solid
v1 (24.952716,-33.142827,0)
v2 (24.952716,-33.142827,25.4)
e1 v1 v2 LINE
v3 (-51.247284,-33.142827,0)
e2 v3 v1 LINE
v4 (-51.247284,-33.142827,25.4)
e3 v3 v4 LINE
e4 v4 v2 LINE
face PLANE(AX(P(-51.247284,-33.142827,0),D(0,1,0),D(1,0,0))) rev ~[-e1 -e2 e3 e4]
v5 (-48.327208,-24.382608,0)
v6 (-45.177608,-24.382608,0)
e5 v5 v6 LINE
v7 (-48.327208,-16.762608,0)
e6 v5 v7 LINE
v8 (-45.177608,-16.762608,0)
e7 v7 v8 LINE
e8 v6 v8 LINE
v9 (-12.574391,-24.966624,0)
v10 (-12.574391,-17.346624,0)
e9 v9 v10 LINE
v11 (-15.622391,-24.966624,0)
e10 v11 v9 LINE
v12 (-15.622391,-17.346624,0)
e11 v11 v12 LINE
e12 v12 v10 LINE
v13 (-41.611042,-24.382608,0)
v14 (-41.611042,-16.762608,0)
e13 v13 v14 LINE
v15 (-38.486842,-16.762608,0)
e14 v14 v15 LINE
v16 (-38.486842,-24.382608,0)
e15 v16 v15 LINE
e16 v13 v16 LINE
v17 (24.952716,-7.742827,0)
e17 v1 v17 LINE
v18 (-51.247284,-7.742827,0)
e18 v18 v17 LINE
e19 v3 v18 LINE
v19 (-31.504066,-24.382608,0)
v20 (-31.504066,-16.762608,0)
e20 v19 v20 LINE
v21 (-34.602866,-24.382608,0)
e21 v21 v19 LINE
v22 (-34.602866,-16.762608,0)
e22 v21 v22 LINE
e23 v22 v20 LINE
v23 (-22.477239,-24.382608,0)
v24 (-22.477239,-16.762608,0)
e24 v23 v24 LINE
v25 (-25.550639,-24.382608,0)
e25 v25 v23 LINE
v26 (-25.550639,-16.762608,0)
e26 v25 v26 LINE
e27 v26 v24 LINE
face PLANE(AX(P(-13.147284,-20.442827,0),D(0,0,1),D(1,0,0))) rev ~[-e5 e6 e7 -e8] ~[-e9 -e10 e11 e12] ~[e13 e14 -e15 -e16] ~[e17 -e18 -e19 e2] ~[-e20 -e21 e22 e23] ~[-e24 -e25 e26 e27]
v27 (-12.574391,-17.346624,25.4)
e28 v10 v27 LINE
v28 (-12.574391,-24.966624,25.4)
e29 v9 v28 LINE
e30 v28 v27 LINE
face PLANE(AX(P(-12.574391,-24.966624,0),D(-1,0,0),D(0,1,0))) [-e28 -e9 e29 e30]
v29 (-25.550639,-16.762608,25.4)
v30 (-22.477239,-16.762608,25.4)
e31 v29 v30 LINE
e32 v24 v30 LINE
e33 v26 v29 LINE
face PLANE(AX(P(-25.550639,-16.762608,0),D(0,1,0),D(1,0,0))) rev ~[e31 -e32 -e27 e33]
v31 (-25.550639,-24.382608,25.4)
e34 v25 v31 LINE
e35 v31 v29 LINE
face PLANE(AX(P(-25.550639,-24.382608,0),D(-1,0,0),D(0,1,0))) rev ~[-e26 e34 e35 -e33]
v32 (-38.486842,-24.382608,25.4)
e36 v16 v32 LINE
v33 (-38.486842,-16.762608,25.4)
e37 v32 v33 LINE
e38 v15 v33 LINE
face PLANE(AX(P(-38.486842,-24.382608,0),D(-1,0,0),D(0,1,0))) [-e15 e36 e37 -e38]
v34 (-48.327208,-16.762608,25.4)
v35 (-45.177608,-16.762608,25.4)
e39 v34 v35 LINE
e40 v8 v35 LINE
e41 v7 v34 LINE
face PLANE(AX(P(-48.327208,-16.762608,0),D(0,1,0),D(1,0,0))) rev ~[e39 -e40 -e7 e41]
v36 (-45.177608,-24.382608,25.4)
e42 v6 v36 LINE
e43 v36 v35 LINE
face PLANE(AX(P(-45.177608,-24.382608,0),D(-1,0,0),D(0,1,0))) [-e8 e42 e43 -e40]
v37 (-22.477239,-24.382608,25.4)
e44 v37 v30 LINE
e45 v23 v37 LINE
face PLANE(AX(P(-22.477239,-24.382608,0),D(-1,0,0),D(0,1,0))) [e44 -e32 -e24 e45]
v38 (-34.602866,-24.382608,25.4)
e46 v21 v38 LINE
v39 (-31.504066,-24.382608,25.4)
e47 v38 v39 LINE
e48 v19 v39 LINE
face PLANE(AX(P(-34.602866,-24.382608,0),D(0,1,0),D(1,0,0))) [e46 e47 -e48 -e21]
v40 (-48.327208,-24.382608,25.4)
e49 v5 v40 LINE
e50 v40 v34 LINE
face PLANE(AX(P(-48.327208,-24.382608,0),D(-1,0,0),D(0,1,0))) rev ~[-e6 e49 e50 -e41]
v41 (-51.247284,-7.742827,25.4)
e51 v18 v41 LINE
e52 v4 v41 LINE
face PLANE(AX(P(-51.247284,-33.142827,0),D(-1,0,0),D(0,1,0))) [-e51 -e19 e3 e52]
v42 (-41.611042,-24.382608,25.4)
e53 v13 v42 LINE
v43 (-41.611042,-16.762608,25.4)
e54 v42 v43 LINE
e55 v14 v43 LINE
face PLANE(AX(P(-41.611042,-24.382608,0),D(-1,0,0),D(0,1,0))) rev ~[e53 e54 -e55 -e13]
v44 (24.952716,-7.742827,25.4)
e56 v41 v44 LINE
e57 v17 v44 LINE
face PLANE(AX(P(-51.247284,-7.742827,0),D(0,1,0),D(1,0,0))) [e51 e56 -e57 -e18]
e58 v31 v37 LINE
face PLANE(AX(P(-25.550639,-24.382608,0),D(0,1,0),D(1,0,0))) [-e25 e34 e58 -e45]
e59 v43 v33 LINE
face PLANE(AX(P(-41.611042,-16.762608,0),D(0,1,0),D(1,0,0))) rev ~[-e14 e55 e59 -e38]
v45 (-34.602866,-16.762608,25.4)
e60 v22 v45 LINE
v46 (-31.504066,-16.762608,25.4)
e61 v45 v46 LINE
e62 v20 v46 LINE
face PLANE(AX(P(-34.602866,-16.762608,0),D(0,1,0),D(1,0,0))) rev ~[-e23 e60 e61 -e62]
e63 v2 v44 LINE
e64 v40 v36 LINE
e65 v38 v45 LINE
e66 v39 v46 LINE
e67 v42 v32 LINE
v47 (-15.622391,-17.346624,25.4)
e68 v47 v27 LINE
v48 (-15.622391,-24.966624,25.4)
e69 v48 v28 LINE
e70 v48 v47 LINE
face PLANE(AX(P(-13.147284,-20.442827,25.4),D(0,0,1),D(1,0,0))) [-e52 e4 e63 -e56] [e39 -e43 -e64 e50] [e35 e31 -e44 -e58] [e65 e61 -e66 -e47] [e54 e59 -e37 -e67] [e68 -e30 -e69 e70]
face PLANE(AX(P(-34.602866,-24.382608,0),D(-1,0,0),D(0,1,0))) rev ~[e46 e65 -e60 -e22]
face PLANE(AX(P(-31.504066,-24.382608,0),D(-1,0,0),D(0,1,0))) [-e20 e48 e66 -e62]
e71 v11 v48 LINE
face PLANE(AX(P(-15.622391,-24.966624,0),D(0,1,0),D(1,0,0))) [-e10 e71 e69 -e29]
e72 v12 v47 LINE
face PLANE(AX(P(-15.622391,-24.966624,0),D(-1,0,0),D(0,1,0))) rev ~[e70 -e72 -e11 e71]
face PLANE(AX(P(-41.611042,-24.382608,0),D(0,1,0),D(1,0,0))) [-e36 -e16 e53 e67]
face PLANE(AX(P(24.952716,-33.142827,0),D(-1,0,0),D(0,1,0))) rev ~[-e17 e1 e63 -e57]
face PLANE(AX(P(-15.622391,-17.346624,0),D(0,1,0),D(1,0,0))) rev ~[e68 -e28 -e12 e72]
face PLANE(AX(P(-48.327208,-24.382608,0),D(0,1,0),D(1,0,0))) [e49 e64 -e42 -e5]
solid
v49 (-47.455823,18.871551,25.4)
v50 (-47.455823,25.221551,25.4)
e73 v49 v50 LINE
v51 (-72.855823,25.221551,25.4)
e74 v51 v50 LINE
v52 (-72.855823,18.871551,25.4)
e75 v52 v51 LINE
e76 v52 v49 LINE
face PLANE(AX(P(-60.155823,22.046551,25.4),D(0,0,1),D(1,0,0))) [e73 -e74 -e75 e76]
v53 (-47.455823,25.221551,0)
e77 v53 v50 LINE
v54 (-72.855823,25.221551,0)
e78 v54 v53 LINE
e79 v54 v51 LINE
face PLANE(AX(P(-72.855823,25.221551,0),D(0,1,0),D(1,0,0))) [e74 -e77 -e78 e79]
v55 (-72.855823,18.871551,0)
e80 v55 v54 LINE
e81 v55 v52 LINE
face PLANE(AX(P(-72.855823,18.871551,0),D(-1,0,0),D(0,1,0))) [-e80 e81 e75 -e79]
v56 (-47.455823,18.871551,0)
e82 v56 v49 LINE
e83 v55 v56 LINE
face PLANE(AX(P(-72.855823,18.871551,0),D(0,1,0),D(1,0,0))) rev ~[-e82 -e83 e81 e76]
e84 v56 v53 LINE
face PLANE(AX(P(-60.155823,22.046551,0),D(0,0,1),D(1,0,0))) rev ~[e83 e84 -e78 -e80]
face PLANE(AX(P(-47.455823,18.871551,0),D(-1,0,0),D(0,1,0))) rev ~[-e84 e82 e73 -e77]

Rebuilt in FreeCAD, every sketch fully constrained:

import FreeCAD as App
import Part
import Sketcher
Q = App.Units.Quantity

doc = App.newDocument("Part")
body = doc.addObject("PartDesign::Body", "Body")
body.AllowCompound = True

# Sketch on XY plane
sketch1 = body.newObject("Sketcher::SketchObject", "Sketch")
sketch1.AttachmentSupport = (doc.getObject("XY_Plane"), [""])
sketch1.MapMode = "FlatFace"
sketch1.addGeometry([
    Part.LineSegment(App.Vector(-72.9, 25.2, 0), App.Vector(-72.9, 18.9, 0)),  # 0
    Part.LineSegment(App.Vector(-72.9, 18.9, 0), App.Vector(-47.5, 18.9, 0)),  # 1
    Part.LineSegment(App.Vector(-47.5, 18.9, 0), App.Vector(-47.5, 25.2, 0)),  # 2
    Part.LineSegment(App.Vector(-47.5, 25.2, 0), App.Vector(-72.9, 25.2, 0)),  # 3
    Part.LineSegment(App.Vector(-51.2, -7.7, 0), App.Vector(-51.2, -33.1, 0)),  # 4
    Part.LineSegment(App.Vector(-51.2, -33.1, 0), App.Vector(25, -33.1, 0)),  # 5
    Part.LineSegment(App.Vector(25, -33.1, 0), App.Vector(25, -7.7, 0)),  # 6
    Part.LineSegment(App.Vector(25, -7.7, 0), App.Vector(-51.2, -7.7, 0)),  # 7
    Part.LineSegment(App.Vector(-12.6, -25, 0), App.Vector(-15.6, -25, 0)),  # 8
    Part.LineSegment(App.Vector(-15.6, -25, 0), App.Vector(-15.6, -17.3, 0)),  # 9
    Part.LineSegment(App.Vector(-15.6, -17.3, 0), App.Vector(-12.6, -17.3, 0)),  # 10
    Part.LineSegment(App.Vector(-12.6, -17.3, 0), App.Vector(-12.6, -25, 0)),  # 11
    Part.LineSegment(App.Vector(-45.2, -24.4, 0), App.Vector(-48.3, -24.4, 0)),  # 12
    Part.LineSegment(App.Vector(-48.3, -24.4, 0), App.Vector(-48.3, -16.8, 0)),  # 13
    Part.LineSegment(App.Vector(-48.3, -16.8, 0), App.Vector(-45.2, -16.8, 0)),  # 14
    Part.LineSegment(App.Vector(-45.2, -16.8, 0), App.Vector(-45.2, -24.4, 0)),  # 15
    Part.LineSegment(App.Vector(-38.5, -24.4, 0), App.Vector(-41.6, -24.4, 0)),  # 16
    Part.LineSegment(App.Vector(-41.6, -24.4, 0), App.Vector(-41.6, -16.8, 0)),  # 17
    Part.LineSegment(App.Vector(-41.6, -16.8, 0), App.Vector(-38.5, -16.8, 0)),  # 18
    Part.LineSegment(App.Vector(-38.5, -16.8, 0), App.Vector(-38.5, -24.4, 0)),  # 19
    Part.LineSegment(App.Vector(-31.5, -24.4, 0), App.Vector(-34.6, -24.4, 0)),  # 20
    Part.LineSegment(App.Vector(-34.6, -24.4, 0), App.Vector(-34.6, -16.8, 0)),  # 21
    Part.LineSegment(App.Vector(-34.6, -16.8, 0), App.Vector(-31.5, -16.8, 0)),  # 22
    Part.LineSegment(App.Vector(-31.5, -16.8, 0), App.Vector(-31.5, -24.4, 0)),  # 23
    Part.LineSegment(App.Vector(-22.5, -24.4, 0), App.Vector(-25.6, -24.4, 0)),  # 24
    Part.LineSegment(App.Vector(-25.6, -24.4, 0), App.Vector(-25.6, -16.8, 0)),  # 25
    Part.LineSegment(App.Vector(-25.6, -16.8, 0), App.Vector(-22.5, -16.8, 0)),  # 26
    Part.LineSegment(App.Vector(-22.5, -16.8, 0), App.Vector(-22.5, -24.4, 0)),  # 27
], False)
sketch1.addConstraint([
    Sketcher.Constraint("Coincident", 0, 2, 1, 1),
    Sketcher.Constraint("Coincident", 1, 2, 2, 1),
    Sketcher.Constraint("Coincident", 2, 2, 3, 1),
    Sketcher.Constraint("Coincident", 3, 2, 0, 1),
    Sketcher.Constraint("Coincident", 4, 2, 5, 1),
    Sketcher.Constraint("Coincident", 5, 2, 6, 1),
    Sketcher.Constraint("Coincident", 6, 2, 7, 1),
    Sketcher.Constraint("Coincident", 7, 2, 4, 1),
    Sketcher.Constraint("Coincident", 8, 2, 9, 1),
    Sketcher.Constraint("Coincident", 9, 2, 10, 1),
    Sketcher.Constraint("Coincident", 10, 2, 11, 1),
    Sketcher.Constraint("Coincident", 11, 2, 8, 1),
    Sketcher.Constraint("Coincident", 12, 2, 13, 1),
    Sketcher.Constraint("Coincident", 13, 2, 14, 1),
    Sketcher.Constraint("Coincident", 14, 2, 15, 1),
    Sketcher.Constraint("Coincident", 15, 2, 12, 1),
    Sketcher.Constraint("Coincident", 16, 2, 17, 1),
    Sketcher.Constraint("Coincident", 17, 2, 18, 1),
    Sketcher.Constraint("Coincident", 18, 2, 19, 1),
    Sketcher.Constraint("Coincident", 19, 2, 16, 1),
    Sketcher.Constraint("Coincident", 20, 2, 21, 1),
    Sketcher.Constraint("Coincident", 21, 2, 22, 1),
    Sketcher.Constraint("Coincident", 22, 2, 23, 1),
    Sketcher.Constraint("Coincident", 23, 2, 20, 1),
    Sketcher.Constraint("Coincident", 24, 2, 25, 1),
    Sketcher.Constraint("Coincident", 25, 2, 26, 1),
    Sketcher.Constraint("Coincident", 26, 2, 27, 1),
    Sketcher.Constraint("Coincident", 27, 2, 24, 1),
    Sketcher.Constraint("Vertical", 0),
    Sketcher.Constraint("Horizontal", 1),
    Sketcher.Constraint("Vertical", 2),
    Sketcher.Constraint("Horizontal", 3),
    Sketcher.Constraint("Vertical", 4),
    Sketcher.Constraint("Horizontal", 5),
    Sketcher.Constraint("Vertical", 6),
    Sketcher.Constraint("Horizontal", 7),
    Sketcher.Constraint("Horizontal", 8),
    Sketcher.Constraint("Vertical", 9),
    Sketcher.Constraint("Horizontal", 10),
    Sketcher.Constraint("Vertical", 11),
    Sketcher.Constraint("Horizontal", 12),
    Sketcher.Constraint("Vertical", 13),
    Sketcher.Constraint("Horizontal", 14),
    Sketcher.Constraint("Vertical", 15),
    Sketcher.Constraint("Horizontal", 16),
    Sketcher.Constraint("Vertical", 17),
    Sketcher.Constraint("Horizontal", 18),
    Sketcher.Constraint("Vertical", 19),
    Sketcher.Constraint("Horizontal", 20),
    Sketcher.Constraint("Vertical", 21),
    Sketcher.Constraint("Horizontal", 22),
    Sketcher.Constraint("Vertical", 23),
    Sketcher.Constraint("Horizontal", 24),
    Sketcher.Constraint("Vertical", 25),
    Sketcher.Constraint("Horizontal", 26),
    Sketcher.Constraint("Vertical", 27),
    Sketcher.Constraint("Horizontal", 15, 2, 16, 2),
    Sketcher.Constraint("Horizontal", 14, 2, 17, 2),
    Sketcher.Constraint("Horizontal", 19, 2, 20, 2),
    Sketcher.Constraint("Horizontal", 18, 2, 21, 2),
    Sketcher.Constraint("Horizontal", 23, 2, 24, 2),
    Sketcher.Constraint("Horizontal", 22, 2, 25, 2),
    Sketcher.Constraint("Equal", 3, 4),
    Sketcher.Constraint("Equal", 11, 13),
    Sketcher.Constraint("DistanceX", 1, 1, 1, 2, Q("1 in")),
    Sketcher.Constraint("DistanceX", 5, 1, 5, 2, Q("3 in")),
    Sketcher.Constraint("DistanceY", 9, 1, 9, 2, Q("0.3 in")),
    Sketcher.Constraint("DistanceX", 8, 2, 8, 1, Q("0.12 in")),
    Sketcher.Constraint("DistanceY", 0, 2, 0, 1, Q("0.25 in")),
    Sketcher.Constraint("DistanceX", 12, 2, 12, 1, Q("0.124 in")),
    Sketcher.Constraint("DistanceX", 16, 2, 16, 1, Q("0.123 in")),
    Sketcher.Constraint("DistanceX", 20, 2, 20, 1, Q("0.122 in")),
    Sketcher.Constraint("DistanceX", 24, 2, 24, 1, Q("0.121 in")),
    Sketcher.Constraint("DistanceY", -1, 1, 0, 2, 18.871551),
    Sketcher.Constraint("DistanceX", 8, 2, -1, 1, 15.622391),
    Sketcher.Constraint("DistanceY", 12, 2, -1, 1, 24.382608),
    Sketcher.Constraint("DistanceX", 16, 2, -1, 1, 41.611042),
    Sketcher.Constraint("DistanceX", 24, 2, -1, 1, 25.550639),
    Sketcher.Constraint("DistanceX", 4, 2, 1, 2, 3.791461),
    Sketcher.Constraint("DistanceY", 4, 2, 2, 2, 58.364378),
    Sketcher.Constraint("DistanceX", 0, 2, -1, 1, 72.855823),
    Sketcher.Constraint("DistanceY", 8, 2, -1, 1, 24.966624),
    Sketcher.Constraint("DistanceX", 12, 2, -1, 1, 48.327208),
    Sketcher.Constraint("DistanceX", 20, 2, -1, 1, 34.602866),
])
pad1 = body.newObject("PartDesign::Pad", "Pad")
pad1.Profile = sketch1
pad1.Length = Q("1 in")

doc.recompute()
